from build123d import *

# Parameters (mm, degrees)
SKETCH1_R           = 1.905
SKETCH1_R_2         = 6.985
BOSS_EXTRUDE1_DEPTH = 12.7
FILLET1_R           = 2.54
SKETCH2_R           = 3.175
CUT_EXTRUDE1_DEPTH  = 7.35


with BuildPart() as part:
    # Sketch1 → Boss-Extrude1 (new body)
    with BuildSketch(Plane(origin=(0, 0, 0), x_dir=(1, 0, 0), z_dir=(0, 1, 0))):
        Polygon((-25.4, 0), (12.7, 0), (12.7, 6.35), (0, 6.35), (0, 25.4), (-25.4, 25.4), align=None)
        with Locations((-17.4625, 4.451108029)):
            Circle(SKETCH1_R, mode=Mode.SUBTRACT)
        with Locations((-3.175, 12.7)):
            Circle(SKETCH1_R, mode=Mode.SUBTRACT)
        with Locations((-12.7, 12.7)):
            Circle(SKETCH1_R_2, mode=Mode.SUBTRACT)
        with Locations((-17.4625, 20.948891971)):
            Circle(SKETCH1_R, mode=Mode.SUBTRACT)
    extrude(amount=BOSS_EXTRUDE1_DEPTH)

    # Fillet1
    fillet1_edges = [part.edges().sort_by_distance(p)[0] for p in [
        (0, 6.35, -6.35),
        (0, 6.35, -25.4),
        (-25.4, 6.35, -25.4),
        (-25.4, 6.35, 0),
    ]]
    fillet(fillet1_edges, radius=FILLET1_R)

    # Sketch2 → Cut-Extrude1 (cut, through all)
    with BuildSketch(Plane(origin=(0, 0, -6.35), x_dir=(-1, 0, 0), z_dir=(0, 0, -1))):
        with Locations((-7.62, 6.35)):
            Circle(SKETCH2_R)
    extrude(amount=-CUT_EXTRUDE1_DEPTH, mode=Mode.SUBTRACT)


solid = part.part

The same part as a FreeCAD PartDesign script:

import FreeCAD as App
import Part
import Sketcher
from FreeCAD import Vector
Q = App.Units.Quantity


def edges_at(feature, points):
    """Names of the edges that pass closest to the given points."""
    edges = feature.Shape.Edges
    near = lambda p: min(range(len(edges)), key=lambda i: edges[i].distToShape(Part.Vertex(*p))[0])
    return sorted({f"Edge{near(p) + 1}" for p in points})


def add_polygon(sketch, points):
    """Adds a closed chain of lines whose ends are joined by coincident constraints."""
    first, n = sketch.GeometryCount, len(points)
    for a, b in zip(points, points[1:] + points[:1]):
        sketch.addGeometry(Part.LineSegment(App.Vector(*a, 0), App.Vector(*b, 0)), False)
    for i in range(n):
        sketch.addConstraint(Sketcher.Constraint("Coincident", first + i, 2, first + (i + 1) % n, 1))

doc = App.newDocument("Part")
body = doc.addObject("PartDesign::Body", "Body")

sketch1 = body.newObject("Sketcher::SketchObject", "Sketch")
sketch1.AttachmentSupport = (doc.getObject("XZ_Plane"), [""])
sketch1.MapMode = "FlatFace"
add_polygon(sketch1, [(-25.4, 0), (12.7, 0), (12.7, -6.3), (0, -6.3), (0, -25.4), (-25.4, -25.4)])
sketch1.addGeometry(Part.Circle(Vector(-17.5, -4.5, 0), Vector(0, 0, 1), 1.9), False)
sketch1.addGeometry(Part.Circle(Vector(-12.7, -12.7, 0), Vector(0, 0, 1), 7), False)
sketch1.addGeometry(Part.Circle(Vector(-3.2, -12.7, 0), Vector(0, 0, 1), 1.9), False)
sketch1.addGeometry(Part.Circle(Vector(-17.5, -20.9, 0), Vector(0, 0, 1), 1.9), False)
sketch1.addConstraint(Sketcher.Constraint("Horizontal", 0))
sketch1.addConstraint(Sketcher.Constraint("Vertical", 1))
sketch1.addConstraint(Sketcher.Constraint("Horizontal", 2))
sketch1.addConstraint(Sketcher.Constraint("Vertical", 3))
sketch1.addConstraint(Sketcher.Constraint("Horizontal", 4))
sketch1.addConstraint(Sketcher.Constraint("Vertical", 5))
sketch1.addConstraint(Sketcher.Constraint("Equal", 6, 8))
sketch1.addConstraint(Sketcher.Constraint("Equal", 8, 9))
sketch1.addConstraint(Sketcher.Constraint("PointOnObject", 0, 2, -1))
sketch1.addConstraint(Sketcher.Constraint("PointOnObject", 2, 2, -2))
sketch1.addConstraint(Sketcher.Constraint("Horizontal", 7, 3, 8, 3))
sketch1.addConstraint(Sketcher.Constraint("Vertical", 6, 3, 9, 3))
sketch1.addConstraint(Sketcher.Constraint("Equal", 4, 5))
sketch1.addConstraint(Sketcher.Constraint("Diameter", 6, Q("0.15 in")))
sketch1.addConstraint(Sketcher.Constraint("Diameter", 7, Q("0.55 in")))
sketch1.addConstraint(Sketcher.Constraint("DistanceX", 4, 2, 4, 1, Q("1 in")))
sketch1.addConstraint(Sketcher.Constraint("DistanceX", 0, 1, 0, 2, Q("1.5 in")))
sketch1.addConstraint(Sketcher.Constraint("DistanceX", 7, 3, 0, 2, Q("1 in")))
sketch1.addConstraint(Sketcher.Constraint("DistanceY", 1, 2, 1, 1, Q("0.25 in")))
sketch1.addConstraint(Sketcher.Constraint("DistanceY", 7, 3, -1, 1, Q("0.5 in")))
sketch1.addConstraint(Sketcher.Constraint("DistanceX", 6, 3, -1, 1, Q("0.6875 in")))
sketch1.addConstraint(Sketcher.Constraint("DistanceX", 8, 3, -1, 1, Q("0.125 in")))
sketch1.addConstraint(Sketcher.Constraint("DistanceY", 6, 3, -1, 1, Q("4.451108 mm")))
sketch1.addConstraint(Sketcher.Constraint("DistanceY", 9, 3, -1, 1, Q("20.948892 mm")))
pad1 = body.newObject("PartDesign::Pad", "Pad")
pad1.Profile = sketch1
pad1.Length = Q("0.5 in")
pad1.Reversed = True
doc.recompute()

fillet = body.newObject("PartDesign::Fillet", "Fillet")
fillet.Base = (pad1, edges_at(pad1, [
    (0, 6.35, -6.35),
    (0, 6.35, -25.4),
    (-25.4, 6.35, -25.4),
    (-25.4, 6.35, 0),
]))
fillet.Radius = Q("0.1 in")

sketch2 = body.newObject("Sketcher::SketchObject", "Sketch001")
sketch2.AttachmentSupport = (doc.getObject("XY_Plane"), [""])
sketch2.MapMode = "FlatFace"
sketch2.AttachmentOffset = App.Placement(Vector(0, 0, -0.25 * 25.4), App.Rotation())
sketch2.addGeometry(Part.Circle(Vector(7.6, 6.3, 0), Vector(0, 0, 1), 3.2), False)
sketch2.addConstraint(Sketcher.Constraint("Diameter", 0, Q("0.25 in")))
sketch2.addConstraint(Sketcher.Constraint("DistanceX", -1, 1, 0, 3, Q("0.3 in")))
sketch2.addConstraint(Sketcher.Constraint("DistanceY", -1, 1, 0, 3, Q("0.25 in")))
pocket1 = body.newObject("PartDesign::Pocket", "Pocket")
pocket1.Profile = sketch2
pocket1.Type = "ThroughAll"
pocket1.Reversed = True

doc.recompute()
